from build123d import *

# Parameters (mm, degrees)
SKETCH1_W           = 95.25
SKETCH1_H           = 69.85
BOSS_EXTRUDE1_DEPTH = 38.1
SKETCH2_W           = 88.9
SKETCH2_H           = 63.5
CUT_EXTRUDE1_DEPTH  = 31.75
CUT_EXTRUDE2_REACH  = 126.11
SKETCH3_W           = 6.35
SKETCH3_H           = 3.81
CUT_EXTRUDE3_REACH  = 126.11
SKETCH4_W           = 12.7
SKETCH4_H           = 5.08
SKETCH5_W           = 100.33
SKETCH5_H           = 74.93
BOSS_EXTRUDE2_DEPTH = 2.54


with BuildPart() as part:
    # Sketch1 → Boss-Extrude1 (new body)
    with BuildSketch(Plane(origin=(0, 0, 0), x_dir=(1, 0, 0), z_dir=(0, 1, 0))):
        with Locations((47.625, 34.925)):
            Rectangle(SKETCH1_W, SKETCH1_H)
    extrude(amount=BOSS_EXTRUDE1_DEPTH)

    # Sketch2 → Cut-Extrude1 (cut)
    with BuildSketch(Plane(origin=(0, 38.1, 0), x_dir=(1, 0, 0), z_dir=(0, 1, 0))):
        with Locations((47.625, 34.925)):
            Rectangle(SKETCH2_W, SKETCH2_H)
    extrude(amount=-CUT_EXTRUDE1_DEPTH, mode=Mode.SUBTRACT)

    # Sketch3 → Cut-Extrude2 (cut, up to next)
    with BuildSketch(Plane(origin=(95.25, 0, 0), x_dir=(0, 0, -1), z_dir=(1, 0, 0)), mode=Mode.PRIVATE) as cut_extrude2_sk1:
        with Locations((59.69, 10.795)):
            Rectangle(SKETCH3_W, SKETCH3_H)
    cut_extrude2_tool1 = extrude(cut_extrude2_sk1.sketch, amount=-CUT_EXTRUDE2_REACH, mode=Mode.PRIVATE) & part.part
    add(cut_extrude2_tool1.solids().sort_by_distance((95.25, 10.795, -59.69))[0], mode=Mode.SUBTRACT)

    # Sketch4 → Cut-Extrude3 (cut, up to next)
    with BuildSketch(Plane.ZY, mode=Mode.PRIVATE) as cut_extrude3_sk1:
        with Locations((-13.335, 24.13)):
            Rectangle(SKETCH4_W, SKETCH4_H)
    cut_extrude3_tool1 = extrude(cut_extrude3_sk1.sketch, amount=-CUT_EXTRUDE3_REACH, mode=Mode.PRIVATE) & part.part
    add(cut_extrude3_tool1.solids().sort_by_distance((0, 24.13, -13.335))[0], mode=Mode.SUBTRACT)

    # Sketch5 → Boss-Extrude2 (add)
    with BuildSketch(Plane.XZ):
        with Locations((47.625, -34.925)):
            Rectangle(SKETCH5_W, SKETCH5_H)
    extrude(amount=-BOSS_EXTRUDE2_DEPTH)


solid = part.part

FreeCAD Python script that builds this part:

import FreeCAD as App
import Part
import Sketcher
from FreeCAD import Vector
Q = App.Units.Quantity


def add_polygon(sketch, points):
    """Adds a closed chain of lines whose ends are joined by coincident constraints."""
    first, n = sketch.GeometryCount, len(points)
    for a, b in zip(points, points[1:] + points[:1]):
        sketch.addGeometry(Part.LineSegment(App.Vector(*a, 0), App.Vector(*b, 0)), False)
    for i in range(n):
        sketch.addConstraint(Sketcher.Constraint("Coincident", first + i, 2, first + (i + 1) % n, 1))

doc = App.newDocument("Part")
params = doc.addObject("Spreadsheet::Sheet", "Params")
for row, (alias, value) in enumerate([
    ("sketch1_width", "3.75 in"),
    ("sketch1_height", "2.75 in"),
    ("pad1_length", "1.5 in"),
    ("sketch2_width", "3.5 in"),
    ("sketch2_height", "2.5 in"),
    ("pocket1_length", "1.25 in"),
    ("sketch3_width", "0.15 in"),
    ("sketch3_height", "0.25 in"),
    ("sketch4_width", "0.2 in"),
    ("sketch4_height", "0.5 in"),
    ("sketch5_width", "3.95 in"),
    ("sketch5_height", "2.95 in"),
    ("pad2_length", "0.1 in"),
], start=1):
    params.set(f"A{row}", alias)
    params.set(f"B{row}", "=" + value)
    params.setAlias(f"B{row}", alias)

body = doc.addObject("PartDesign::Body", "Body")

# Sketch on XZ plane
sketch1 = body.newObject("Sketcher::SketchObject", "Sketch")
sketch1.AttachmentSupport = (doc.getObject("XZ_Plane"), [""])
sketch1.MapMode = "FlatFace"
add_polygon(sketch1, [(0, -70), (0, 0), (95, 0), (95, -70)])  # lines 0-3
sketch1.addConstraint(Sketcher.Constraint("Vertical", 0))
sketch1.addConstraint(Sketcher.Constraint("Horizontal", 1))
sketch1.addConstraint(Sketcher.Constraint("Vertical", 2))
sketch1.addConstraint(Sketcher.Constraint("Horizontal", 3))
sketch1.addConstraint(Sketcher.Constraint("Coincident", 0, 2, -1, 1))
sketch1.addConstraint(Sketcher.Constraint("DistanceX", 1, 1, 1, 2, Q("3.75 in")))
sketch1.addConstraint(Sketcher.Constraint("DistanceY", 0, 1, 0, 2, Q("2.75 in")))
sketch1.setExpression("Constraints[9]", "Params.sketch1_width")
sketch1.setExpression("Constraints[10]", "Params.sketch1_height")
pad1 = body.newObject("PartDesign::Pad", "Pad")
pad1.Profile = sketch1
pad1.setExpression("Length", "Params.pad1_length")
pad1.Reversed = True

# Sketch on XZ plane
sketch2 = body.newObject("Sketcher::SketchObject", "Sketch001")
sketch2.AttachmentSupport = (doc.getObject("XZ_Plane"), [""])
sketch2.MapMode = "FlatFace"
sketch2.AttachmentOffset = App.Placement(Vector(0, 0, -1.5 * 25.4), App.Rotation())
add_polygon(sketch2, [(3, -67), (3, -3), (92, -3), (92, -67)])  # lines 0-3
sketch2.addConstraint(Sketcher.Constraint("Vertical", 0))
sketch2.addConstraint(Sketcher.Constraint("Horizontal", 1))
sketch2.addConstraint(Sketcher.Constraint("Vertical", 2))
sketch2.addConstraint(Sketcher.Constraint("Horizontal", 3))
sketch2.addConstraint(Sketcher.Constraint("DistanceX", 1, 1, 1, 2, Q("3.5 in")))
sketch2.addConstraint(Sketcher.Constraint("DistanceY", 0, 1, 0, 2, Q("2.5 in")))
sketch2.addConstraint(Sketcher.Constraint("DistanceX", -1, 1, 0, 2, Q("0.125 in")))
sketch2.addConstraint(Sketcher.Constraint("DistanceY", 0, 2, -1, 1, Q("0.125 in")))
sketch2.setExpression("Constraints[8]", "Params.sketch2_width")
sketch2.setExpression("Constraints[9]", "Params.sketch2_height")
pocket1 = body.newObject("PartDesign::Pocket", "Pocket")
pocket1.Profile = sketch2
pocket1.setExpression("Length", "Params.pocket1_length")
pocket1.Reversed = True

# Sketch on YZ plane
sketch3 = body.newObject("Sketcher::SketchObject", "Sketch002")
sketch3.AttachmentSupport = (doc.getObject("YZ_Plane"), [""])
sketch3.MapMode = "FlatFace"
sketch3.AttachmentOffset = App.Placement(Vector(0, 0, 3.75 * 25.4), App.Rotation())
add_polygon(sketch3, [(12.7, -56.5), (8.9, -56.5), (8.9, -62.9), (12.7, -62.9)])  # lines 0-3
sketch3.addConstraint(Sketcher.Constraint("Horizontal", 0))
sketch3.addConstraint(Sketcher.Constraint("Vertical", 1))
sketch3.addConstraint(Sketcher.Constraint("Horizontal", 2))
sketch3.addConstraint(Sketcher.Constraint("Vertical", 3))
sketch3.addConstraint(Sketcher.Constraint("DistanceX", 0, 2, 0, 1, Q("0.15 in")))
sketch3.addConstraint(Sketcher.Constraint("DistanceY", 1, 2, 1, 1, Q("0.25 in")))
sketch3.addConstraint(Sketcher.Constraint("DistanceX", -1, 1, 2, 2, Q("0.5 in")))
sketch3.addConstraint(Sketcher.Constraint("DistanceY", 0, 2, -1, 1, Q("2.225 in")))
sketch3.setExpression("Constraints[8]", "Params.sketch3_width")
sketch3.setExpression("Constraints[9]", "Params.sketch3_height")
pocket2 = body.newObject("PartDesign::Pocket", "Pocket001")
pocket2.Profile = sketch3
pocket2.Type = "UpToFirst"

# Sketch on YZ plane
sketch4 = body.newObject("Sketcher::SketchObject", "Sketch003")
sketch4.AttachmentSupport = (doc.getObject("YZ_Plane"), [""])
sketch4.MapMode = "FlatFace"
add_polygon(sketch4, [(27, -20), (22, -20), (22, -7), (27, -7)])  # lines 0-3
sketch4.addConstraint(Sketcher.Constraint("Horizontal", 0))
sketch4.addConstraint(Sketcher.Constraint("Vertical", 1))
sketch4.addConstraint(Sketcher.Constraint("Horizontal", 2))
sketch4.addConstraint(Sketcher.Constraint("Vertical", 3))
sketch4.addConstraint(Sketcher.Constraint("DistanceX", 0, 2, 0, 1, Q("0.2 in")))
sketch4.addConstraint(Sketcher.Constraint("DistanceY", 1, 1, 1, 2, Q("0.5 in")))
sketch4.addConstraint(Sketcher.Constraint("DistanceX", -1, 1, 0, 2, Q("0.85 in")))
sketch4.addConstraint(Sketcher.Constraint("DistanceY", 0, 2, -1, 1, Q("0.775 in")))
sketch4.setExpression("Constraints[8]", "Params.sketch4_width")
sketch4.setExpression("Constraints[9]", "Params.sketch4_height")
pocket3 = body.newObject("PartDesign::Pocket", "Pocket002")
pocket3.Profile = sketch4
pocket3.Type = "UpToFirst"
pocket3.Reversed = True

# Sketch on XZ plane
sketch5 = body.newObject("Sketcher::SketchObject", "Sketch004")
sketch5.AttachmentSupport = (doc.getObject("XZ_Plane"), [""])
sketch5.MapMode = "FlatFace"
add_polygon(sketch5, [(-3, 3), (-3, -72), (98, -72), (98, 3)])  # lines 0-3
sketch5.addConstraint(Sketcher.Constraint("Vertical", 0))
sketch5.addConstraint(Sketcher.Constraint("Horizontal", 1))
sketch5.addConstraint(Sketcher.Constraint("Vertical", 2))
sketch5.addConstraint(Sketcher.Constraint("Horizontal", 3))
sketch5.addConstraint(Sketcher.Constraint("DistanceX", 1, 1, 1, 2, Q("3.95 in")))
sketch5.addConstraint(Sketcher.Constraint("DistanceY", 0, 2, 0, 1, Q("2.95 in")))
sketch5.addConstraint(Sketcher.Constraint("DistanceX", 0, 2, -1, 1, Q("0.1 in")))
sketch5.addConstraint(Sketcher.Constraint("DistanceY", -1, 1, 2, 2, Q("0.1 in")))
sketch5.setExpression("Constraints[8]", "Params.sketch5_width")
sketch5.setExpression("Constraints[9]", "Params.sketch5_height")
pad2 = body.newObject("PartDesign::Pad", "Pad001")
pad2.Profile = sketch5
pad2.setExpression("Length", "Params.pad2_length")
pad2.Reversed = True

doc.recompute()
